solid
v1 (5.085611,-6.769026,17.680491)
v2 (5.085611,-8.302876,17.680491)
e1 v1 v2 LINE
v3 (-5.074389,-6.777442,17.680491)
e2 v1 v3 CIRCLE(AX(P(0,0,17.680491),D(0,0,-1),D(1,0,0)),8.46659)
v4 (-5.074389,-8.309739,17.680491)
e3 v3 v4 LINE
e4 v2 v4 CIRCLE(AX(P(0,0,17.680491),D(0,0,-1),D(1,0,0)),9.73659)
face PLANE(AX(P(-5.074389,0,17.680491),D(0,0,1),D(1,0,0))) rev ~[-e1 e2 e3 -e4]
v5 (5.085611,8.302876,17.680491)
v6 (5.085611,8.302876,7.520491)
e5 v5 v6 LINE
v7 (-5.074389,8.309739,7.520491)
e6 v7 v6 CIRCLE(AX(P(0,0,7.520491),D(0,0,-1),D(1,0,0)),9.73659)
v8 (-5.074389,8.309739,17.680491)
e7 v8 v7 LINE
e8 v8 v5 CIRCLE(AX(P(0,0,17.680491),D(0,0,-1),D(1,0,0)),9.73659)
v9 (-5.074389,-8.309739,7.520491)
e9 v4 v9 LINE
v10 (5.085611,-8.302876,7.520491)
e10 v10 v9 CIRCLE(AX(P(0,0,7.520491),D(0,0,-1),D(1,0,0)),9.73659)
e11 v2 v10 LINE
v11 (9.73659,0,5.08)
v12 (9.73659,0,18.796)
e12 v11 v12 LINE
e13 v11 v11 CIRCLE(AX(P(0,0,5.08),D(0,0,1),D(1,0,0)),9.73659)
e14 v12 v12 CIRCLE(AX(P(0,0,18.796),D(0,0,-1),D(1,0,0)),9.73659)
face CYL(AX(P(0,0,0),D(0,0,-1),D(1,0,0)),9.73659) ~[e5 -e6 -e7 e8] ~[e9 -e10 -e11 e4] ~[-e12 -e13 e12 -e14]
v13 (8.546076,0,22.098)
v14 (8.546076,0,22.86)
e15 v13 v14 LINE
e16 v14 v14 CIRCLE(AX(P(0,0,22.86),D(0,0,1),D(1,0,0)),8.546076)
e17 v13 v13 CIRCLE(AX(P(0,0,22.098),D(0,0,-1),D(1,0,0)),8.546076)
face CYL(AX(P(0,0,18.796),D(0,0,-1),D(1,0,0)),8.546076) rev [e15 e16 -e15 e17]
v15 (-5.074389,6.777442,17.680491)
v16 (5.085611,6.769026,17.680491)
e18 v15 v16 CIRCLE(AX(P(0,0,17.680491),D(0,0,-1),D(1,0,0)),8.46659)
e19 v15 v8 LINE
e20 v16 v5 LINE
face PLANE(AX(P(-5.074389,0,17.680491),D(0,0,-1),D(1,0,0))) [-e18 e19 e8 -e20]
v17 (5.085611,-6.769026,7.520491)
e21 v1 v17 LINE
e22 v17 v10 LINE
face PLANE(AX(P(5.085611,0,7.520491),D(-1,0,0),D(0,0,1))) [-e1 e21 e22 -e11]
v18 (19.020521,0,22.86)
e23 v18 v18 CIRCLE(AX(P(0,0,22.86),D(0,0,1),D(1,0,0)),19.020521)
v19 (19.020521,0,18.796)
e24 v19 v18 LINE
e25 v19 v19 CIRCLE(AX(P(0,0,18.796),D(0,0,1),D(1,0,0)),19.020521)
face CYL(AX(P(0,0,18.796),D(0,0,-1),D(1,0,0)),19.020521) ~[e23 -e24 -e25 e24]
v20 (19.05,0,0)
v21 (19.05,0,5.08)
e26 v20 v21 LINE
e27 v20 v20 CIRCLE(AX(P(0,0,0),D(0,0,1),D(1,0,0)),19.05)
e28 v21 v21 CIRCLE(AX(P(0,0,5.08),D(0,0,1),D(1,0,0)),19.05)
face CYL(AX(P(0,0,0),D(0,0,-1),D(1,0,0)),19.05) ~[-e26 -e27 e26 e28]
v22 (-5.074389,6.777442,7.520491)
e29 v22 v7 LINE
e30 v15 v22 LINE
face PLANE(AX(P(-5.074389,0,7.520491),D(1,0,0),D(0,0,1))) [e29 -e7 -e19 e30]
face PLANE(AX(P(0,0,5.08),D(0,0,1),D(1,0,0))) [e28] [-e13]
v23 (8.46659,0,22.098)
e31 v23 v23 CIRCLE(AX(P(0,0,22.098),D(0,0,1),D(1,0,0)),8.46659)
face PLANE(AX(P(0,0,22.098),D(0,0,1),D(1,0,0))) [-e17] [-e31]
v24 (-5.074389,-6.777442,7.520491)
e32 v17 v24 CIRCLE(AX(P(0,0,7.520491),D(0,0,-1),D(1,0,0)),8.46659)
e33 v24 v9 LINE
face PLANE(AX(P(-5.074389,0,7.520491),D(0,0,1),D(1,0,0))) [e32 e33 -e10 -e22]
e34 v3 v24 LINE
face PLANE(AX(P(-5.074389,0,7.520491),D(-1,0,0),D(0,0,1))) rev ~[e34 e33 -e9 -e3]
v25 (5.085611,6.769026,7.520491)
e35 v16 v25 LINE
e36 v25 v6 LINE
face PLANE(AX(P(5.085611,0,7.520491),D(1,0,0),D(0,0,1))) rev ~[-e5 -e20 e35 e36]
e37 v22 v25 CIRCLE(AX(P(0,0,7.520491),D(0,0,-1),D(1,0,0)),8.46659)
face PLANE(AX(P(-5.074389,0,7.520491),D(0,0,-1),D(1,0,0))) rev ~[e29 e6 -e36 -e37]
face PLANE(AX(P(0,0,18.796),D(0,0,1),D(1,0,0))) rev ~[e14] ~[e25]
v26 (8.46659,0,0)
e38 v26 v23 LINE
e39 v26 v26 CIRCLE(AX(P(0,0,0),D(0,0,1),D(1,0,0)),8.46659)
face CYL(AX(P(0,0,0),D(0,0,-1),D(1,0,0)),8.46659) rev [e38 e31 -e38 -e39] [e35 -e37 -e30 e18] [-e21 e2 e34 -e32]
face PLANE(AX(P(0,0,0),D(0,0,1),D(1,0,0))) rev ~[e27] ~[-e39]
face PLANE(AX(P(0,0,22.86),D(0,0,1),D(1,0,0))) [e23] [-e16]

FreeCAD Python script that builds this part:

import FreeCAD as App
import Part
import Sketcher
from FreeCAD import Vector
Q = App.Units.Quantity

doc = App.newDocument("Part")
body = doc.addObject("PartDesign::Body", "Body")

sketch1 = doc.addObject("Sketcher::SketchObject", "Sketch")
body.addObject(sketch1)
sketch1.AttachmentSupport = (doc.XY_Plane, [""])
sketch1.MapMode = "FlatFace"
sketch1.addGeometry(Part.Circle(Vector(0, 0, 0), Vector(0, 0, 1), 19), False)
sketch1.addGeometry(Part.Circle(Vector(0, 0, 0), Vector(0, 0, 1), 10), False)
sketch1.addConstraint(Sketcher.Constraint("Coincident", 0, 3, -1, 1))
sketch1.addConstraint(Sketcher.Constraint("Coincident", 1, 3, -1, 1))
sketch1.addConstraint(Sketcher.Constraint("Diameter", 0, Q("1.5 in")))
sketch1.addConstraint(Sketcher.Constraint("Diameter", 1, Q("19.47318 mm")))
pad1 = doc.addObject("PartDesign::Pad", "Pad")
body.addObject(pad1)
pad1.Profile = sketch1
pad1.Length = Q("0.2 in")

sketch2 = doc.addObject("Sketcher::SketchObject", "Sketch001")
body.addObject(sketch2)
sketch2.AttachmentSupport = (doc.XY_Plane, [""])
sketch2.MapMode = "FlatFace"
sketch2.addGeometry(Part.Circle(Vector(0, 0, 0), Vector(0, 0, 1), 10), False)
sketch2.addGeometry(Part.Circle(Vector(0, 0, 0), Vector(0, 0, 1), 8), False)
sketch2.addConstraint(Sketcher.Constraint("Coincident", 0, 3, -1, 1))
sketch2.addConstraint(Sketcher.Constraint("Coincident", 1, 3, -1, 1))
sketch2.addConstraint(Sketcher.Constraint("Diameter", 0, Q("19.47318 mm")))
sketch2.addConstraint(Sketcher.Constraint("Diameter", 1, Q("16.93318 mm")))
pad2 = doc.addObject("PartDesign::Pad", "Pad001")
body.addObject(pad2)
pad2.Profile = sketch2
pad2.Length = Q("0.87 in")

sketch3 = doc.addObject("Sketcher::SketchObject", "Sketch002")
body.addObject(sketch3)
sketch3.AttachmentSupport = (doc.XY_Plane, [""])
sketch3.MapMode = "FlatFace"
sketch3.AttachmentOffset = App.Placement(Vector(0, 0, 0.74 * 25.4), App.Rotation())
sketch3.addGeometry(Part.Circle(Vector(0, 0, 0), Vector(0, 0, 1), 19), False)
sketch3.addGeometry(Part.Circle(Vector(0, 0, 0), Vector(0, 0, 1), 9), False)
sketch3.addConstraint(Sketcher.Constraint("Coincident", 0, 3, -1, 1))
sketch3.addConstraint(Sketcher.Constraint("Coincident", 1, 3, -1, 1))
sketch3.addConstraint(Sketcher.Constraint("Diameter", 1, Q("17.092151 mm")))
sketch3.addConstraint(Sketcher.Constraint("Diameter", 0, Q("38.041042 mm")))
pad3 = doc.addObject("PartDesign::Pad", "Pad002")
body.addObject(pad3)
pad3.Profile = sketch3
pad3.Length = Q("0.16 in")

sketch4 = doc.addObject("Sketcher::SketchObject", "Sketch003")
body.addObject(sketch4)
sketch4.AttachmentSupport = (doc.XZ_Plane, [""])
sketch4.MapMode = "FlatFace"
sketch4.addGeometry(Part.LineSegment(Vector(-5, 18, 0), Vector(-5, 8, 0)), False)
sketch4.addGeometry(Part.LineSegment(Vector(-5, 8, 0), Vector(5, 8, 0)), False)
sketch4.addGeometry(Part.LineSegment(Vector(5, 8, 0), Vector(5, 18, 0)), False)
sketch4.addGeometry(Part.LineSegment(Vector(5, 18, 0), Vector(-5, 18, 0)), False)
sketch4.addConstraint(Sketcher.Constraint("Coincident", 0, 2, 1, 1))
sketch4.addConstraint(Sketcher.Constraint("Coincident", 1, 2, 2, 1))
sketch4.addConstraint(Sketcher.Constraint("Coincident", 2, 2, 3, 1))
sketch4.addConstraint(Sketcher.Constraint("Coincident", 3, 2, 0, 1))
sketch4.addConstraint(Sketcher.Constraint("Vertical", 0))
sketch4.addConstraint(Sketcher.Constraint("Horizontal", 1))
sketch4.addConstraint(Sketcher.Constraint("Vertical", 2))
sketch4.addConstraint(Sketcher.Constraint("Horizontal", 3))
sketch4.addConstraint(Sketcher.Constraint("Equal", 3, 0))
sketch4.addConstraint(Sketcher.Constraint("DistanceX", 1, 1, 1, 2, Q("0.4 in")))
sketch4.addConstraint(Sketcher.Constraint("DistanceX", 0, 2, -1, 1, Q("5.074389 mm")))
sketch4.addConstraint(Sketcher.Constraint("DistanceY", -1, 1, 0, 2, Q("7.520491 mm")))
pocket1 = doc.addObject("PartDesign::Pocket", "Pocket")
body.addObject(pocket1)
pocket1.Profile = sketch4
pocket1.Type = "ThroughAll"
pocket1.Midplane = True

doc.recompute()
